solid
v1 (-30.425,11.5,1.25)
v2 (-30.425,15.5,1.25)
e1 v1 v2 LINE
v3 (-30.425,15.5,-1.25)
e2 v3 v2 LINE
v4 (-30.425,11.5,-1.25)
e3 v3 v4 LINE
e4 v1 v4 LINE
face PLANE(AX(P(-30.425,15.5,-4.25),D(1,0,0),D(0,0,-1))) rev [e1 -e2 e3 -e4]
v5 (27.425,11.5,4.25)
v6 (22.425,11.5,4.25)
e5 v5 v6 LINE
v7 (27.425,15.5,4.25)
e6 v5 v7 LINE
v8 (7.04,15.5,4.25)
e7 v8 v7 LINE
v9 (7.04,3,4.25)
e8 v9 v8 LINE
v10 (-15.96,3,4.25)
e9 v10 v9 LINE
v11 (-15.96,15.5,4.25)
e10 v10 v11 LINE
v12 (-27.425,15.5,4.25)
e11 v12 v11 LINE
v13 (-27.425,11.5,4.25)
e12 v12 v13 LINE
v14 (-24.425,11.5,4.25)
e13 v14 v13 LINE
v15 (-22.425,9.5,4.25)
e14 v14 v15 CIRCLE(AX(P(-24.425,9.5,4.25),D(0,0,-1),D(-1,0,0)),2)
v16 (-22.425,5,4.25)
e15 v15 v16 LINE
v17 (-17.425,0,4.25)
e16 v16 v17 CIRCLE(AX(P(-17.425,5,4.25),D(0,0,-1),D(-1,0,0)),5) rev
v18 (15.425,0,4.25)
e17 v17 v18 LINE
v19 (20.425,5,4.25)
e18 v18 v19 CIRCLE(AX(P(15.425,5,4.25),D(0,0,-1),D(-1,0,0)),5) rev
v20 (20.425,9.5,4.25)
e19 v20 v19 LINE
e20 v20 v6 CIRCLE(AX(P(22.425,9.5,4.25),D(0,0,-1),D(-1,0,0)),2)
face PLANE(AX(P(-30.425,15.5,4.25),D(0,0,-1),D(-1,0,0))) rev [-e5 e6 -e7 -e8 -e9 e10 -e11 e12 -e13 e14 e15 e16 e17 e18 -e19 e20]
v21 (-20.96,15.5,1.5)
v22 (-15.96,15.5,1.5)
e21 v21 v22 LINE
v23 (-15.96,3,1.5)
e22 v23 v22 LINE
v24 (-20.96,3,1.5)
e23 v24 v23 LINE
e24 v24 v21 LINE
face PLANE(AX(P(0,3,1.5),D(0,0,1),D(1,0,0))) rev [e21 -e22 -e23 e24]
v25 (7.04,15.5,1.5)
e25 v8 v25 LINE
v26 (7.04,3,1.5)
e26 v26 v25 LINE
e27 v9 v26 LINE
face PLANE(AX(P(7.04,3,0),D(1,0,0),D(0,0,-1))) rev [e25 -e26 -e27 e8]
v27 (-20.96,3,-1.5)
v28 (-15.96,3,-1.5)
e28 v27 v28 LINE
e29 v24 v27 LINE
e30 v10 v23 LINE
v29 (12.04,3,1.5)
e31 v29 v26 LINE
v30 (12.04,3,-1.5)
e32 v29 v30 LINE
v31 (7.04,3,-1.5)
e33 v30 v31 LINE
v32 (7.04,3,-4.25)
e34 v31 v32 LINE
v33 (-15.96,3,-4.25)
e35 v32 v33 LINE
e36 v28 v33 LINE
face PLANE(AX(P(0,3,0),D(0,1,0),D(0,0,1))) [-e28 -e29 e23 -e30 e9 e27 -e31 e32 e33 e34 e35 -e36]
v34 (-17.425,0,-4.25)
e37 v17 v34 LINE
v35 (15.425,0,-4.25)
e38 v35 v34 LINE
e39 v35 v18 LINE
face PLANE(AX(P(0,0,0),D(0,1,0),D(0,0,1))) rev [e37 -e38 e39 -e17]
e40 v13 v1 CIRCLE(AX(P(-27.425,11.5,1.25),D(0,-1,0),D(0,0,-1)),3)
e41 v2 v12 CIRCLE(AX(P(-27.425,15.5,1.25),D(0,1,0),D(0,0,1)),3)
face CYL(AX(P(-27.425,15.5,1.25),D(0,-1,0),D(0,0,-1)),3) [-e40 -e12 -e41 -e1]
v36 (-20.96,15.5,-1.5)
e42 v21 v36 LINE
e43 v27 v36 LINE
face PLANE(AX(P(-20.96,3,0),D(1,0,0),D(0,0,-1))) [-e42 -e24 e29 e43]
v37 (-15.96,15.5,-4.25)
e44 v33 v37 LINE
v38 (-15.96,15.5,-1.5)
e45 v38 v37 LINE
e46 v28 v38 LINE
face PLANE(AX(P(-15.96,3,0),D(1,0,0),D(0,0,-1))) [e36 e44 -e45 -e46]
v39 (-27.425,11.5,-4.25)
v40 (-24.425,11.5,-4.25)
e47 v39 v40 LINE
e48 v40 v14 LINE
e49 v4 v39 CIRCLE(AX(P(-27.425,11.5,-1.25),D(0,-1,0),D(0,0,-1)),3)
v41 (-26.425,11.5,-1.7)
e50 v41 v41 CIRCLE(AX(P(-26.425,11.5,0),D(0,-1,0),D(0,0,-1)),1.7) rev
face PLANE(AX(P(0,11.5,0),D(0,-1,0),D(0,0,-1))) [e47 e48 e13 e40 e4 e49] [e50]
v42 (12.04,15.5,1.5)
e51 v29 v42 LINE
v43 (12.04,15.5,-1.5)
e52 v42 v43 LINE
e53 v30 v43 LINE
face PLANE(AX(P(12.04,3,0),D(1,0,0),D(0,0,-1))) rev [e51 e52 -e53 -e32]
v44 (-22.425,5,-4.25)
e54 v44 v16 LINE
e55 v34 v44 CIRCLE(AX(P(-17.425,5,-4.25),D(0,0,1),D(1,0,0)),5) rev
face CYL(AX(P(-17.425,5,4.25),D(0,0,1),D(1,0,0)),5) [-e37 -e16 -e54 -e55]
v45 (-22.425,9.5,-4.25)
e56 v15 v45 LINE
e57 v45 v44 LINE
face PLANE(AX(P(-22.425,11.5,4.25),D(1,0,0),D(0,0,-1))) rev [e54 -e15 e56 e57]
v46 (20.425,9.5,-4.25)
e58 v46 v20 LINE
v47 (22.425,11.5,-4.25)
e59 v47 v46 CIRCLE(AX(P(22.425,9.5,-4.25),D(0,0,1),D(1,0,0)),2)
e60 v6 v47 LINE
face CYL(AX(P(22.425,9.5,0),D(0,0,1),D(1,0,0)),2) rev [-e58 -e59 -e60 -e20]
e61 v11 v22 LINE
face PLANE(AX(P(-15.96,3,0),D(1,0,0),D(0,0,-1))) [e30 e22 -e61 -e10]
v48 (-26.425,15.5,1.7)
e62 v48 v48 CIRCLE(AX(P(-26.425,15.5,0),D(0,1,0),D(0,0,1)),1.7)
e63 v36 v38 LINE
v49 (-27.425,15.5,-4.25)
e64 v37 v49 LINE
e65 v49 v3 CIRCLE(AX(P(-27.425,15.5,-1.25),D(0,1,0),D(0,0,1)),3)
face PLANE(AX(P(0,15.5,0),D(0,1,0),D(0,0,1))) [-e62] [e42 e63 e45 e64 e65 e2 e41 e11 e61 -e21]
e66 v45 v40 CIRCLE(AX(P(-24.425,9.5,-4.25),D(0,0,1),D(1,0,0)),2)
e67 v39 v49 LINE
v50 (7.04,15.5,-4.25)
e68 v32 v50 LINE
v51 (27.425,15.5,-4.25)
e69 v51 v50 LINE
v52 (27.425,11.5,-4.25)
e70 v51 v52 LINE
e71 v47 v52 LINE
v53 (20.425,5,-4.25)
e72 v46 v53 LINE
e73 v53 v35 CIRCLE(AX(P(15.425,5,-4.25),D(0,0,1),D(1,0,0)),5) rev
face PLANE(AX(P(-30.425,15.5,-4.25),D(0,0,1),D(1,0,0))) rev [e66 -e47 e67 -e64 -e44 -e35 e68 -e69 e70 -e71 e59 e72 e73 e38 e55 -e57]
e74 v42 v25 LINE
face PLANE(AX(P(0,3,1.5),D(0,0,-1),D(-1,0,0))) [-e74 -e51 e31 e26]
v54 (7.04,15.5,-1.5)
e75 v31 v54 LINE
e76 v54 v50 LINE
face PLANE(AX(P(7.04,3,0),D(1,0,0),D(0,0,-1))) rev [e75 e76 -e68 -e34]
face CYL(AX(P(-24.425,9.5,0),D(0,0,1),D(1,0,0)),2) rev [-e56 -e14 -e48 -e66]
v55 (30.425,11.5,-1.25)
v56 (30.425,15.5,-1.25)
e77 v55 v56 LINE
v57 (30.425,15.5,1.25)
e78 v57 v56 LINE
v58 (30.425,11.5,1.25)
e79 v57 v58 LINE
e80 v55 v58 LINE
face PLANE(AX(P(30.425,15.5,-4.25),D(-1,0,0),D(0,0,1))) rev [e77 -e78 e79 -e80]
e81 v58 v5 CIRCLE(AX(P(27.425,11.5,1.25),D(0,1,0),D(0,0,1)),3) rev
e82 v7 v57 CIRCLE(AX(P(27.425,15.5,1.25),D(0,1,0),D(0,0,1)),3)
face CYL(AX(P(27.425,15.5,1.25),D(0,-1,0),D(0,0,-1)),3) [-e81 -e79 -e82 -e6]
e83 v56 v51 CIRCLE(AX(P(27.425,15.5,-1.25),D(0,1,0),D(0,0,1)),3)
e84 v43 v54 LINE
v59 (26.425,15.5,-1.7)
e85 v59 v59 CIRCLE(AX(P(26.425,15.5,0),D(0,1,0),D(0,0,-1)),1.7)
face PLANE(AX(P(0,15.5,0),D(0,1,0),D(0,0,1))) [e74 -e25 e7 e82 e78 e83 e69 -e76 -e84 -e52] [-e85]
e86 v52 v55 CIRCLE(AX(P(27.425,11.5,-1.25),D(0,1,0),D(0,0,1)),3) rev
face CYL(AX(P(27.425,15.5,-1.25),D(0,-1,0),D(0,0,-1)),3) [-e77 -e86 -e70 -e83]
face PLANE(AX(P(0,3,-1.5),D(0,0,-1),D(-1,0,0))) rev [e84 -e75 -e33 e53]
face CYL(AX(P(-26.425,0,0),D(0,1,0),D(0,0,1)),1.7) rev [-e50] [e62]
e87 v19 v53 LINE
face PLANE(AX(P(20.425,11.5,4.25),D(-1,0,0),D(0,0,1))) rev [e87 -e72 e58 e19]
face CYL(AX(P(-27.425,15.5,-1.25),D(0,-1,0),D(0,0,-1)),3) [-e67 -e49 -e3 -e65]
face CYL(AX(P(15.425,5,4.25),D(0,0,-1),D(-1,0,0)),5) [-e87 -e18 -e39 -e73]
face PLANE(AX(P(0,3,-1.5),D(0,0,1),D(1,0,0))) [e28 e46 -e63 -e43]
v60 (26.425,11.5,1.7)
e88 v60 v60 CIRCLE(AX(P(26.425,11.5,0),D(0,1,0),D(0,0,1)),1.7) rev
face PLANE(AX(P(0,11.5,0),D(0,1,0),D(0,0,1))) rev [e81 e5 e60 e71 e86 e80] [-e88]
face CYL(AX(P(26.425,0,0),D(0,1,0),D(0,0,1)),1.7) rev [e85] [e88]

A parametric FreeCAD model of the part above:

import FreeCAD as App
import Part
import Sketcher
from FreeCAD import Vector


def edges_at(feature, points):
    """Names of the edges that pass closest to the given points."""
    edges = feature.Shape.Edges
    near = lambda p: min(range(len(edges)), key=lambda i: edges[i].distToShape(Part.Vertex(*p))[0])
    return sorted({f"Edge{near(p) + 1}" for p in points})

doc = App.newDocument("Part")
body = doc.addObject("PartDesign::Body", "Body")

# Sketch on XZ plane
sketch1 = body.newObject("Sketcher::SketchObject", "Sketch")
sketch1.AttachmentSupport = (doc.getObject("XZ_Plane"), [""])
sketch1.MapMode = "FlatFace"
sketch1.addGeometry([
    Part.LineSegment(Vector(-30, -4, 0), Vector(-30, 4, 0)),
    Part.LineSegment(Vector(-30, 4, 0), Vector(30, 4, 0)),
    Part.LineSegment(Vector(30, 4, 0), Vector(30, -4, 0)),
    Part.LineSegment(Vector(30, -4, 0), Vector(-30, -4, 0)),
], False)
sketch1.addConstraint([
    Sketcher.Constraint("Coincident", 0, 2, 1, 1),
    Sketcher.Constraint("Coincident", 1, 2, 2, 1),
    Sketcher.Constraint("Coincident", 2, 2, 3, 1),
    Sketcher.Constraint("Coincident", 3, 2, 0, 1),
    Sketcher.Constraint("Vertical", 0),
    Sketcher.Constraint("Horizontal", 1),
    Sketcher.Constraint("Vertical", 2),
    Sketcher.Constraint("Horizontal", 3),
    Sketcher.Constraint("Symmetric", 0, 2, 2, 2, -1, 1),
    Sketcher.Constraint("DistanceY", 0, 1, 0, 2, 8.5),
    Sketcher.Constraint("DistanceX", 1, 1, 1, 2, 60.85),
])
pad1 = body.newObject("PartDesign::Pad", "Pad")
pad1.Profile = sketch1
pad1.Length = 15.5
pad1.Reversed = True

# Sketch on XZ plane
sketch2 = body.newObject("Sketcher::SketchObject", "Sketch001")
sketch2.AttachmentSupport = (doc.getObject("XZ_Plane"), [""])
sketch2.MapMode = "FlatFace"
sketch2.AttachmentOffset = App.Placement(Vector(0, 0, -15.5), App.Rotation())
sketch2.addGeometry([
    Part.Circle(Vector(-26.4, 0, 0), Vector(0, 0, 1), 1.7),
    Part.Circle(Vector(26.4, 0, 0), Vector(0, 0, 1), 1.7),
], False)
sketch2.addConstraint([
    Sketcher.Constraint("Equal", 0, 1),
    Sketcher.Constraint("Symmetric", 0, 3, 1, 3, -1, 1),
    Sketcher.Constraint("PointOnObject", 0, 3, -1),
    Sketcher.Constraint("Diameter", 0, 3.4),
    Sketcher.Constraint("DistanceX", 0, 3, 1, 3, 52.85),
])
pocket1 = body.newObject("PartDesign::Pocket", "Pocket")
pocket1.Profile = sketch2
pocket1.Type = "ThroughAll"
pocket1.Reversed = True

# Sketch on XZ plane
sketch3 = body.newObject("Sketcher::SketchObject", "Sketch002")
sketch3.AttachmentSupport = (doc.getObject("XZ_Plane"), [""])
sketch3.MapMode = "FlatFace"
sketch3.AttachmentOffset = App.Placement(Vector(0, 0, -15.5), App.Rotation())
sketch3.addGeometry([
    Part.LineSegment(Vector(-16, 4.2, 0), Vector(7, 4.2, 0)),  # 0
    Part.LineSegment(Vector(7, 4.2, 0), Vector(7, 1.5, 0)),  # 1
    Part.LineSegment(Vector(7, 1.5, 0), Vector(12, 1.5, 0)),  # 2
    Part.LineSegment(Vector(12, 1.5, 0), Vector(12, -1.5, 0)),  # 3
    Part.LineSegment(Vector(12, -1.5, 0), Vector(7, -1.5, 0)),  # 4
    Part.LineSegment(Vector(7, -1.5, 0), Vector(7, -4.2, 0)),  # 5
    Part.LineSegment(Vector(7, -4.2, 0), Vector(-16, -4.2, 0)),  # 6
    Part.LineSegment(Vector(-16, -4.2, 0), Vector(-16, -1.5, 0)),  # 7
    Part.LineSegment(Vector(-16, -1.5, 0), Vector(-21, -1.5, 0)),  # 8
    Part.LineSegment(Vector(-21, -1.5, 0), Vector(-21, 1.5, 0)),  # 9
    Part.LineSegment(Vector(-21, 1.5, 0), Vector(-16, 1.5, 0)),  # 10
    Part.LineSegment(Vector(-16, 1.5, 0), Vector(-16, 4.2, 0)),  # 11
], False)
sketch3.addConstraint([
    Sketcher.Constraint("Coincident", 0, 2, 1, 1),
    Sketcher.Constraint("Coincident", 1, 2, 2, 1),
    Sketcher.Constraint("Coincident", 2, 2, 3, 1),
    Sketcher.Constraint("Coincident", 3, 2, 4, 1),
    Sketcher.Constraint("Coincident", 4, 2, 5, 1),
    Sketcher.Constraint("Coincident", 5, 2, 6, 1),
    Sketcher.Constraint("Coincident", 6, 2, 7, 1),
    Sketcher.Constraint("Coincident", 7, 2, 8, 1),
    Sketcher.Constraint("Coincident", 8, 2, 9, 1),
    Sketcher.Constraint("Coincident", 9, 2, 10, 1),
    Sketcher.Constraint("Coincident", 10, 2, 11, 1),
    Sketcher.Constraint("Coincident", 11, 2, 0, 1),
    Sketcher.Constraint("Horizontal", 0),
    Sketcher.Constraint("Vertical", 1),
    Sketcher.Constraint("Horizontal", 2),
    Sketcher.Constraint("Vertical", 3),
    Sketcher.Constraint("Horizontal", 4),
    Sketcher.Constraint("Vertical", 5),
    Sketcher.Constraint("Horizontal", 6),
    Sketcher.Constraint("Vertical", 7),
    Sketcher.Constraint("Horizontal", 8),
    Sketcher.Constraint("Vertical", 9),
    Sketcher.Constraint("Horizontal", 10),
    Sketcher.Constraint("Vertical", 11),
    Sketcher.Constraint("Symmetric", 1, 2, 4, 2, -1),
    Sketcher.Constraint("Symmetric", 7, 2, 10, 2, -1),
    Sketcher.Constraint("Horizontal", 4, 2, 7, 2),
    Sketcher.Constraint("Equal", 4, 8),
    Sketcher.Constraint("Equal", 1, 5),
    Sketcher.Constraint("DistanceX", 0, 1, 0, 2, 23.0),
    Sketcher.Constraint("DistanceX", 2, 1, 2, 2, 5.0),
    Sketcher.Constraint("DistanceY", 3, 2, 3, 1, 3.0),
    Sketcher.Constraint("DistanceY", 1, 2, 1, 1, 2.75),
    Sketcher.Constraint("DistanceX", -1, 1, 0, 2, 7.04),
])
pocket2 = body.newObject("PartDesign::Pocket", "Pocket001")
pocket2.Profile = sketch3
pocket2.Length = 12.5
pocket2.Reversed = True

# Sketch on XZ plane
sketch4 = body.newObject("Sketcher::SketchObject", "Sketch003")
sketch4.AttachmentSupport = (doc.getObject("XZ_Plane"), [""])
sketch4.MapMode = "FlatFace"
sketch4.addGeometry([
    Part.LineSegment(Vector(-30, 4, 0), Vector(-30, -4, 0)),  # 0
    Part.LineSegment(Vector(-30, -4, 0), Vector(-22, -4, 0)),  # 1
    Part.LineSegment(Vector(-22, -4, 0), Vector(-22, 4, 0)),  # 2
    Part.LineSegment(Vector(-22, 4, 0), Vector(-30, 4, 0)),  # 3
    Part.LineSegment(Vector(20, 4, 0), Vector(20, -4, 0)),  # 4
    Part.LineSegment(Vector(20, -4, 0), Vector(30, -4, 0)),  # 5
    Part.LineSegment(Vector(30, -4, 0), Vector(30, 4, 0)),  # 6
    Part.LineSegment(Vector(30, 4, 0), Vector(20, 4, 0)),  # 7
], False)
sketch4.addConstraint([
    Sketcher.Constraint("Coincident", 0, 2, 1, 1),
    Sketcher.Constraint("Coincident", 1, 2, 2, 1),
    Sketcher.Constraint("Coincident", 2, 2, 3, 1),
    Sketcher.Constraint("Coincident", 3, 2, 0, 1),
    Sketcher.Constraint("Coincident", 4, 2, 5, 1),
    Sketcher.Constraint("Coincident", 5, 2, 6, 1),
    Sketcher.Constraint("Coincident", 6, 2, 7, 1),
    Sketcher.Constraint("Coincident", 7, 2, 4, 1),
    Sketcher.Constraint("Vertical", 0),
    Sketcher.Constraint("Horizontal", 1),
    Sketcher.Constraint("Vertical", 2),
    Sketcher.Constraint("Horizontal", 3),
    Sketcher.Constraint("Vertical", 4),
    Sketcher.Constraint("Horizontal", 5),
    Sketcher.Constraint("Vertical", 6),
    Sketcher.Constraint("Horizontal", 7),
    Sketcher.Constraint("Symmetric", 3, 2, 5, 2, -1, 1),
    Sketcher.Constraint("Horizontal", 1, 2, 4, 2),
    Sketcher.Constraint("Horizontal", 3, 2, 6, 2),
    Sketcher.Constraint("DistanceX", 1, 1, 1, 2, 8.0),
    Sketcher.Constraint("DistanceX", 5, 1, 5, 2, 10.0),
    Sketcher.Constraint("DistanceY", 0, 2, 0, 1, 8.5),
    Sketcher.Constraint("DistanceX", 1, 2, 4, 2, 42.85),
])
pocket3 = body.newObject("PartDesign::Pocket", "Pocket002")
pocket3.Profile = sketch4
pocket3.Length = 11.5
doc.recompute()

fillet = body.newObject("PartDesign::Fillet", "Fillet")
fillet.Base = (pocket3, edges_at(pocket3, [(-22.425, 11.5, 0), (20.425, 11.5, 0)]))
fillet.Radius = 2
doc.recompute()

fillet2 = body.newObject("PartDesign::Fillet", "Fillet001")
fillet2.Base = (fillet, edges_at(fillet, [
    (30.425, 13.5, 4.25),
    (-30.425, 13.5, 4.25),
    (-30.425, 13.5, -4.25),
    (30.425, 13.5, -4.25),
]))
fillet2.Radius = 3
doc.recompute()

fillet3 = body.newObject("PartDesign::Fillet", "Fillet002")
fillet3.Base = (fillet2, edges_at(fillet2, [(-22.425, 0, 0), (20.425, 0, 0)]))
fillet3.Radius = 5

doc.recompute()
